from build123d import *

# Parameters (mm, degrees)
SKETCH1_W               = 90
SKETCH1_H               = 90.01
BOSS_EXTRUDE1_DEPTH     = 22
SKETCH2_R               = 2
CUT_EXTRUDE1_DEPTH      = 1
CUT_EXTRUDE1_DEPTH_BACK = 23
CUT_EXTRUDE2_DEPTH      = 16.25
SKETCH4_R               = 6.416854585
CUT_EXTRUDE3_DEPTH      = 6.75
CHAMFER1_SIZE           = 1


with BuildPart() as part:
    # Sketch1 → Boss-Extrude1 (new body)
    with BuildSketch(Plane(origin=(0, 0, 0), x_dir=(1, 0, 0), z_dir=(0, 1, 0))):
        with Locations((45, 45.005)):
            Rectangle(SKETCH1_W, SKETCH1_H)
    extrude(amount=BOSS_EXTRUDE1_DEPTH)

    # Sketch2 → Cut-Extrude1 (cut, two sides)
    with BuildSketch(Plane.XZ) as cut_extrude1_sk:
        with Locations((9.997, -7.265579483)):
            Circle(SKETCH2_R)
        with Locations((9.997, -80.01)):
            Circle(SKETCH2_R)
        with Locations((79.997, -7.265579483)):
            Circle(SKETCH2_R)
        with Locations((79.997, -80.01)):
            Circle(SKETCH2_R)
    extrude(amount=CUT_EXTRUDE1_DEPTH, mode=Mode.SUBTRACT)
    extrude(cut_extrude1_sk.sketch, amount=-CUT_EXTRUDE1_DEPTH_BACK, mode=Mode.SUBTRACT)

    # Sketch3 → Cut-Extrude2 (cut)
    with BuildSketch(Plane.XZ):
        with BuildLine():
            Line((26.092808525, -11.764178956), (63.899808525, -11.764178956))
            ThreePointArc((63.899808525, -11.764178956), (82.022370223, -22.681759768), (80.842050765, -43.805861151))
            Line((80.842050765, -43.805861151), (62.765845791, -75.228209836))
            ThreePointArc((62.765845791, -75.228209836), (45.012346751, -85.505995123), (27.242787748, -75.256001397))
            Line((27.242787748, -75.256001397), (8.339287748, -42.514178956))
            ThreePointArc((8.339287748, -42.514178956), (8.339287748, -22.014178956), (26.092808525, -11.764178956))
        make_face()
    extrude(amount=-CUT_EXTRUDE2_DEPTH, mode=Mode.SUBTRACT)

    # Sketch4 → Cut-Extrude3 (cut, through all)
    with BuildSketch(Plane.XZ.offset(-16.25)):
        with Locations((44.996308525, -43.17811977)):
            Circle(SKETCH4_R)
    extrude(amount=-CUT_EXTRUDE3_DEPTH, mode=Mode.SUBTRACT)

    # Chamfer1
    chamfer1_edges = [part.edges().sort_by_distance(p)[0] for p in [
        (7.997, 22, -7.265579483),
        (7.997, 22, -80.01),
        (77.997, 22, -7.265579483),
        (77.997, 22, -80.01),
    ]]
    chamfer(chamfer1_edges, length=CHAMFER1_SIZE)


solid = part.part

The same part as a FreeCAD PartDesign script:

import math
import FreeCAD as App
import Part
import Sketcher
Q = App.Units.Quantity


def edges_at(feature, points):
    """Names of the edges that pass closest to the given points."""
    edges = feature.Shape.Edges
    near = lambda p: min(range(len(edges)), key=lambda i: edges[i].distToShape(Part.Vertex(*p))[0])
    return sorted({f"Edge{near(p) + 1}" for p in points})

doc = App.newDocument("Part")
body = doc.addObject("PartDesign::Body", "Body")

# Sketch on XZ plane
sketch1 = doc.addObject("Sketcher::SketchObject", "Sketch")
body.addObject(sketch1)
sketch1.AttachmentSupport = (doc.XZ_Plane, [""])
sketch1.MapMode = "FlatFace"
sketch1.addGeometry(Part.LineSegment(App.Vector(0, -90, 0), App.Vector(0, 0, 0)), False)
sketch1.addGeometry(Part.LineSegment(App.Vector(0, 0, 0), App.Vector(90, 0, 0)), False)
sketch1.addGeometry(Part.LineSegment(App.Vector(90, 0, 0), App.Vector(90, -90, 0)), False)
sketch1.addGeometry(Part.LineSegment(App.Vector(90, -90, 0), App.Vector(0, -90, 0)), False)
sketch1.addConstraint(Sketcher.Constraint("Coincident", 0, 2, 1, 1))
sketch1.addConstraint(Sketcher.Constraint("Coincident", 1, 2, 2, 1))
sketch1.addConstraint(Sketcher.Constraint("Coincident", 2, 2, 3, 1))
sketch1.addConstraint(Sketcher.Constraint("Coincident", 3, 2, 0, 1))
sketch1.addConstraint(Sketcher.Constraint("Vertical", 0))
sketch1.addConstraint(Sketcher.Constraint("Horizontal", 1))
sketch1.addConstraint(Sketcher.Constraint("Vertical", 2))
sketch1.addConstraint(Sketcher.Constraint("Horizontal", 3))
sketch1.addConstraint(Sketcher.Constraint("Coincident", 0, 2, -1, 1))
sketch1.addConstraint(Sketcher.Constraint("DistanceX", 1, 1, 1, 2, 90.0))
sketch1.addConstraint(Sketcher.Constraint("DistanceY", 0, 1, 0, 2, 90.01))
pad1 = doc.addObject("PartDesign::Pad", "Pad")
body.addObject(pad1)
pad1.Profile = sketch1
pad1.Length = 22
pad1.Reversed = True

# Sketch on XZ plane
sketch2 = doc.addObject("Sketcher::SketchObject", "Sketch001")
body.addObject(sketch2)
sketch2.AttachmentSupport = (doc.XZ_Plane, [""])
sketch2.MapMode = "FlatFace"
sketch2.addGeometry(Part.Circle(App.Vector(10, -7.3, 0), App.Vector(0, 0, 1), 2), False)
sketch2.addGeometry(Part.Circle(App.Vector(10, -80, 0), App.Vector(0, 0, 1), 2), False)
sketch2.addGeometry(Part.Circle(App.Vector(80, -7.3, 0), App.Vector(0, 0, 1), 2), False)
sketch2.addGeometry(Part.Circle(App.Vector(80, -80, 0), App.Vector(0, 0, 1), 2), False)
sketch2.addConstraint(Sketcher.Constraint("Equal", 0, 1))
sketch2.addConstraint(Sketcher.Constraint("Equal", 1, 2))
sketch2.addConstraint(Sketcher.Constraint("Equal", 2, 3))
sketch2.addConstraint(Sketcher.Constraint("Horizontal", 0, 3, 2, 3))
sketch2.addConstraint(Sketcher.Constraint("Horizontal", 1, 3, 3, 3))
sketch2.addConstraint(Sketcher.Constraint("Vertical", 0, 3, 1, 3))
sketch2.addConstraint(Sketcher.Constraint("Vertical", 2, 3, 3, 3))
sketch2.addConstraint(Sketcher.Constraint("Diameter", 0, 4.0))
sketch2.addConstraint(Sketcher.Constraint("DistanceX", 0, 3, 2, 3, 70.0))
sketch2.addConstraint(Sketcher.Constraint("DistanceY", 1, 3, -1, 1, 80.01))
sketch2.addConstraint(Sketcher.Constraint("DistanceX", -1, 1, 0, 3, 9.997))
sketch2.addConstraint(Sketcher.Constraint("DistanceY", 0, 3, -1, 1, 7.265579))
pocket1 = doc.addObject("PartDesign::Pocket", "Pocket")
body.addObject(pocket1)
pocket1.Profile = sketch2
pocket1.Type = "ThroughAll"
pocket1.Midplane = True

# Sketch on XZ plane
sketch3 = doc.addObject("Sketcher::SketchObject", "Sketch002")
body.addObject(sketch3)
sketch3.AttachmentSupport = (doc.XZ_Plane, [""])
sketch3.MapMode = "FlatFace"
sketch3.addGeometry(Part.LineSegment(App.Vector(64, -12, 0), App.Vector(26, -12, 0)), False)
sketch3.addGeometry(Part.ArcOfCircle(Part.Circle(App.Vector(26, -32, 0), App.Vector(0, 0, 1), 20), math.radians(90), math.radians(210)), False)
sketch3.addGeometry(Part.LineSegment(App.Vector(8, -43, 0), App.Vector(27, -75, 0)), False)
sketch3.addGeometry(Part.ArcOfCircle(Part.Circle(App.Vector(45, -65, 0), App.Vector(0, 0, 1), 20), math.radians(-150), math.radians(-30)), False)
sketch3.addGeometry(Part.LineSegment(App.Vector(63, -75, 0), App.Vector(81, -44, 0)), False)
sketch3.addGeometry(Part.ArcOfCircle(Part.Circle(App.Vector(64, -32, 0), App.Vector(0, 0, 1), 20), math.radians(-34), math.radians(90)), False)
sketch3.addConstraint(Sketcher.Constraint("Tangent", 0, 2, 1, 1))
sketch3.addConstraint(Sketcher.Constraint("Tangent", 1, 2, 2, 1))
sketch3.addConstraint(Sketcher.Constraint("Tangent", 2, 2, 3, 1))
sketch3.addConstraint(Sketcher.Constraint("Tangent", 3, 2, 4, 1))
sketch3.addConstraint(Sketcher.Constraint("Coincident", 4, 2, 5, 1))
sketch3.addConstraint(Sketcher.Constraint("Tangent", 5, 2, 0, 1))
sketch3.addConstraint(Sketcher.Constraint("Horizontal", 0))
sketch3.addConstraint(Sketcher.Constraint("Equal", 1, 3))
sketch3.addConstraint(Sketcher.Constraint("Equal", 3, 5))
sketch3.addConstraint(Sketcher.Constraint("Radius", 1, 20.5))
sketch3.addConstraint(Sketcher.Constraint("Angle", 2, Q("-60 deg")))
sketch3.addConstraint(Sketcher.Constraint("DistanceX", 0, 2, 0, 1, 37.807))
sketch3.addConstraint(Sketcher.Constraint("Distance", 2, 37.807))
sketch3.addConstraint(Sketcher.Constraint("DistanceY", 3, 3, -1, 1, 65.006001))
sketch3.addConstraint(Sketcher.Constraint("Distance", 4, 36.250699))
sketch3.addConstraint(Sketcher.Constraint("DistanceX", -1, 1, 1, 3, 26.092809))
pocket2 = doc.addObject("PartDesign::Pocket", "Pocket001")
body.addObject(pocket2)
pocket2.Profile = sketch3
pocket2.Length = 16.25

# Sketch on XZ plane
sketch4 = doc.addObject("Sketcher::SketchObject", "Sketch003")
body.addObject(sketch4)
sketch4.AttachmentSupport = (doc.XZ_Plane, [""])
sketch4.MapMode = "FlatFace"
sketch4.AttachmentOffset = App.Placement(App.Vector(0, 0, -16.25), App.Rotation())
sketch4.addGeometry(Part.Circle(App.Vector(45, -43, 0), App.Vector(0, 0, 1), 6), False)
sketch4.addConstraint(Sketcher.Constraint("Diameter", 0, 12.833709))
sketch4.addConstraint(Sketcher.Constraint("DistanceX", -1, 1, 0, 3, 44.996309))
sketch4.addConstraint(Sketcher.Constraint("DistanceY", 0, 3, -1, 1, 43.17812))
pocket3 = doc.addObject("PartDesign::Pocket", "Pocket002")
body.addObject(pocket3)
pocket3.Profile = sketch4
pocket3.Type = "ThroughAll"
doc.recompute()

chamfer = doc.addObject("PartDesign::Chamfer", "Chamfer")
body.addObject(chamfer)
chamfer.Base = (pocket3, edges_at(pocket3, [
    (7.997, 22, -7.266),
    (7.997, 22, -80.01),
    (77.997, 22, -7.266),
    (77.997, 22, -80.01),
]))
chamfer.Size = 1

doc.recompute()
